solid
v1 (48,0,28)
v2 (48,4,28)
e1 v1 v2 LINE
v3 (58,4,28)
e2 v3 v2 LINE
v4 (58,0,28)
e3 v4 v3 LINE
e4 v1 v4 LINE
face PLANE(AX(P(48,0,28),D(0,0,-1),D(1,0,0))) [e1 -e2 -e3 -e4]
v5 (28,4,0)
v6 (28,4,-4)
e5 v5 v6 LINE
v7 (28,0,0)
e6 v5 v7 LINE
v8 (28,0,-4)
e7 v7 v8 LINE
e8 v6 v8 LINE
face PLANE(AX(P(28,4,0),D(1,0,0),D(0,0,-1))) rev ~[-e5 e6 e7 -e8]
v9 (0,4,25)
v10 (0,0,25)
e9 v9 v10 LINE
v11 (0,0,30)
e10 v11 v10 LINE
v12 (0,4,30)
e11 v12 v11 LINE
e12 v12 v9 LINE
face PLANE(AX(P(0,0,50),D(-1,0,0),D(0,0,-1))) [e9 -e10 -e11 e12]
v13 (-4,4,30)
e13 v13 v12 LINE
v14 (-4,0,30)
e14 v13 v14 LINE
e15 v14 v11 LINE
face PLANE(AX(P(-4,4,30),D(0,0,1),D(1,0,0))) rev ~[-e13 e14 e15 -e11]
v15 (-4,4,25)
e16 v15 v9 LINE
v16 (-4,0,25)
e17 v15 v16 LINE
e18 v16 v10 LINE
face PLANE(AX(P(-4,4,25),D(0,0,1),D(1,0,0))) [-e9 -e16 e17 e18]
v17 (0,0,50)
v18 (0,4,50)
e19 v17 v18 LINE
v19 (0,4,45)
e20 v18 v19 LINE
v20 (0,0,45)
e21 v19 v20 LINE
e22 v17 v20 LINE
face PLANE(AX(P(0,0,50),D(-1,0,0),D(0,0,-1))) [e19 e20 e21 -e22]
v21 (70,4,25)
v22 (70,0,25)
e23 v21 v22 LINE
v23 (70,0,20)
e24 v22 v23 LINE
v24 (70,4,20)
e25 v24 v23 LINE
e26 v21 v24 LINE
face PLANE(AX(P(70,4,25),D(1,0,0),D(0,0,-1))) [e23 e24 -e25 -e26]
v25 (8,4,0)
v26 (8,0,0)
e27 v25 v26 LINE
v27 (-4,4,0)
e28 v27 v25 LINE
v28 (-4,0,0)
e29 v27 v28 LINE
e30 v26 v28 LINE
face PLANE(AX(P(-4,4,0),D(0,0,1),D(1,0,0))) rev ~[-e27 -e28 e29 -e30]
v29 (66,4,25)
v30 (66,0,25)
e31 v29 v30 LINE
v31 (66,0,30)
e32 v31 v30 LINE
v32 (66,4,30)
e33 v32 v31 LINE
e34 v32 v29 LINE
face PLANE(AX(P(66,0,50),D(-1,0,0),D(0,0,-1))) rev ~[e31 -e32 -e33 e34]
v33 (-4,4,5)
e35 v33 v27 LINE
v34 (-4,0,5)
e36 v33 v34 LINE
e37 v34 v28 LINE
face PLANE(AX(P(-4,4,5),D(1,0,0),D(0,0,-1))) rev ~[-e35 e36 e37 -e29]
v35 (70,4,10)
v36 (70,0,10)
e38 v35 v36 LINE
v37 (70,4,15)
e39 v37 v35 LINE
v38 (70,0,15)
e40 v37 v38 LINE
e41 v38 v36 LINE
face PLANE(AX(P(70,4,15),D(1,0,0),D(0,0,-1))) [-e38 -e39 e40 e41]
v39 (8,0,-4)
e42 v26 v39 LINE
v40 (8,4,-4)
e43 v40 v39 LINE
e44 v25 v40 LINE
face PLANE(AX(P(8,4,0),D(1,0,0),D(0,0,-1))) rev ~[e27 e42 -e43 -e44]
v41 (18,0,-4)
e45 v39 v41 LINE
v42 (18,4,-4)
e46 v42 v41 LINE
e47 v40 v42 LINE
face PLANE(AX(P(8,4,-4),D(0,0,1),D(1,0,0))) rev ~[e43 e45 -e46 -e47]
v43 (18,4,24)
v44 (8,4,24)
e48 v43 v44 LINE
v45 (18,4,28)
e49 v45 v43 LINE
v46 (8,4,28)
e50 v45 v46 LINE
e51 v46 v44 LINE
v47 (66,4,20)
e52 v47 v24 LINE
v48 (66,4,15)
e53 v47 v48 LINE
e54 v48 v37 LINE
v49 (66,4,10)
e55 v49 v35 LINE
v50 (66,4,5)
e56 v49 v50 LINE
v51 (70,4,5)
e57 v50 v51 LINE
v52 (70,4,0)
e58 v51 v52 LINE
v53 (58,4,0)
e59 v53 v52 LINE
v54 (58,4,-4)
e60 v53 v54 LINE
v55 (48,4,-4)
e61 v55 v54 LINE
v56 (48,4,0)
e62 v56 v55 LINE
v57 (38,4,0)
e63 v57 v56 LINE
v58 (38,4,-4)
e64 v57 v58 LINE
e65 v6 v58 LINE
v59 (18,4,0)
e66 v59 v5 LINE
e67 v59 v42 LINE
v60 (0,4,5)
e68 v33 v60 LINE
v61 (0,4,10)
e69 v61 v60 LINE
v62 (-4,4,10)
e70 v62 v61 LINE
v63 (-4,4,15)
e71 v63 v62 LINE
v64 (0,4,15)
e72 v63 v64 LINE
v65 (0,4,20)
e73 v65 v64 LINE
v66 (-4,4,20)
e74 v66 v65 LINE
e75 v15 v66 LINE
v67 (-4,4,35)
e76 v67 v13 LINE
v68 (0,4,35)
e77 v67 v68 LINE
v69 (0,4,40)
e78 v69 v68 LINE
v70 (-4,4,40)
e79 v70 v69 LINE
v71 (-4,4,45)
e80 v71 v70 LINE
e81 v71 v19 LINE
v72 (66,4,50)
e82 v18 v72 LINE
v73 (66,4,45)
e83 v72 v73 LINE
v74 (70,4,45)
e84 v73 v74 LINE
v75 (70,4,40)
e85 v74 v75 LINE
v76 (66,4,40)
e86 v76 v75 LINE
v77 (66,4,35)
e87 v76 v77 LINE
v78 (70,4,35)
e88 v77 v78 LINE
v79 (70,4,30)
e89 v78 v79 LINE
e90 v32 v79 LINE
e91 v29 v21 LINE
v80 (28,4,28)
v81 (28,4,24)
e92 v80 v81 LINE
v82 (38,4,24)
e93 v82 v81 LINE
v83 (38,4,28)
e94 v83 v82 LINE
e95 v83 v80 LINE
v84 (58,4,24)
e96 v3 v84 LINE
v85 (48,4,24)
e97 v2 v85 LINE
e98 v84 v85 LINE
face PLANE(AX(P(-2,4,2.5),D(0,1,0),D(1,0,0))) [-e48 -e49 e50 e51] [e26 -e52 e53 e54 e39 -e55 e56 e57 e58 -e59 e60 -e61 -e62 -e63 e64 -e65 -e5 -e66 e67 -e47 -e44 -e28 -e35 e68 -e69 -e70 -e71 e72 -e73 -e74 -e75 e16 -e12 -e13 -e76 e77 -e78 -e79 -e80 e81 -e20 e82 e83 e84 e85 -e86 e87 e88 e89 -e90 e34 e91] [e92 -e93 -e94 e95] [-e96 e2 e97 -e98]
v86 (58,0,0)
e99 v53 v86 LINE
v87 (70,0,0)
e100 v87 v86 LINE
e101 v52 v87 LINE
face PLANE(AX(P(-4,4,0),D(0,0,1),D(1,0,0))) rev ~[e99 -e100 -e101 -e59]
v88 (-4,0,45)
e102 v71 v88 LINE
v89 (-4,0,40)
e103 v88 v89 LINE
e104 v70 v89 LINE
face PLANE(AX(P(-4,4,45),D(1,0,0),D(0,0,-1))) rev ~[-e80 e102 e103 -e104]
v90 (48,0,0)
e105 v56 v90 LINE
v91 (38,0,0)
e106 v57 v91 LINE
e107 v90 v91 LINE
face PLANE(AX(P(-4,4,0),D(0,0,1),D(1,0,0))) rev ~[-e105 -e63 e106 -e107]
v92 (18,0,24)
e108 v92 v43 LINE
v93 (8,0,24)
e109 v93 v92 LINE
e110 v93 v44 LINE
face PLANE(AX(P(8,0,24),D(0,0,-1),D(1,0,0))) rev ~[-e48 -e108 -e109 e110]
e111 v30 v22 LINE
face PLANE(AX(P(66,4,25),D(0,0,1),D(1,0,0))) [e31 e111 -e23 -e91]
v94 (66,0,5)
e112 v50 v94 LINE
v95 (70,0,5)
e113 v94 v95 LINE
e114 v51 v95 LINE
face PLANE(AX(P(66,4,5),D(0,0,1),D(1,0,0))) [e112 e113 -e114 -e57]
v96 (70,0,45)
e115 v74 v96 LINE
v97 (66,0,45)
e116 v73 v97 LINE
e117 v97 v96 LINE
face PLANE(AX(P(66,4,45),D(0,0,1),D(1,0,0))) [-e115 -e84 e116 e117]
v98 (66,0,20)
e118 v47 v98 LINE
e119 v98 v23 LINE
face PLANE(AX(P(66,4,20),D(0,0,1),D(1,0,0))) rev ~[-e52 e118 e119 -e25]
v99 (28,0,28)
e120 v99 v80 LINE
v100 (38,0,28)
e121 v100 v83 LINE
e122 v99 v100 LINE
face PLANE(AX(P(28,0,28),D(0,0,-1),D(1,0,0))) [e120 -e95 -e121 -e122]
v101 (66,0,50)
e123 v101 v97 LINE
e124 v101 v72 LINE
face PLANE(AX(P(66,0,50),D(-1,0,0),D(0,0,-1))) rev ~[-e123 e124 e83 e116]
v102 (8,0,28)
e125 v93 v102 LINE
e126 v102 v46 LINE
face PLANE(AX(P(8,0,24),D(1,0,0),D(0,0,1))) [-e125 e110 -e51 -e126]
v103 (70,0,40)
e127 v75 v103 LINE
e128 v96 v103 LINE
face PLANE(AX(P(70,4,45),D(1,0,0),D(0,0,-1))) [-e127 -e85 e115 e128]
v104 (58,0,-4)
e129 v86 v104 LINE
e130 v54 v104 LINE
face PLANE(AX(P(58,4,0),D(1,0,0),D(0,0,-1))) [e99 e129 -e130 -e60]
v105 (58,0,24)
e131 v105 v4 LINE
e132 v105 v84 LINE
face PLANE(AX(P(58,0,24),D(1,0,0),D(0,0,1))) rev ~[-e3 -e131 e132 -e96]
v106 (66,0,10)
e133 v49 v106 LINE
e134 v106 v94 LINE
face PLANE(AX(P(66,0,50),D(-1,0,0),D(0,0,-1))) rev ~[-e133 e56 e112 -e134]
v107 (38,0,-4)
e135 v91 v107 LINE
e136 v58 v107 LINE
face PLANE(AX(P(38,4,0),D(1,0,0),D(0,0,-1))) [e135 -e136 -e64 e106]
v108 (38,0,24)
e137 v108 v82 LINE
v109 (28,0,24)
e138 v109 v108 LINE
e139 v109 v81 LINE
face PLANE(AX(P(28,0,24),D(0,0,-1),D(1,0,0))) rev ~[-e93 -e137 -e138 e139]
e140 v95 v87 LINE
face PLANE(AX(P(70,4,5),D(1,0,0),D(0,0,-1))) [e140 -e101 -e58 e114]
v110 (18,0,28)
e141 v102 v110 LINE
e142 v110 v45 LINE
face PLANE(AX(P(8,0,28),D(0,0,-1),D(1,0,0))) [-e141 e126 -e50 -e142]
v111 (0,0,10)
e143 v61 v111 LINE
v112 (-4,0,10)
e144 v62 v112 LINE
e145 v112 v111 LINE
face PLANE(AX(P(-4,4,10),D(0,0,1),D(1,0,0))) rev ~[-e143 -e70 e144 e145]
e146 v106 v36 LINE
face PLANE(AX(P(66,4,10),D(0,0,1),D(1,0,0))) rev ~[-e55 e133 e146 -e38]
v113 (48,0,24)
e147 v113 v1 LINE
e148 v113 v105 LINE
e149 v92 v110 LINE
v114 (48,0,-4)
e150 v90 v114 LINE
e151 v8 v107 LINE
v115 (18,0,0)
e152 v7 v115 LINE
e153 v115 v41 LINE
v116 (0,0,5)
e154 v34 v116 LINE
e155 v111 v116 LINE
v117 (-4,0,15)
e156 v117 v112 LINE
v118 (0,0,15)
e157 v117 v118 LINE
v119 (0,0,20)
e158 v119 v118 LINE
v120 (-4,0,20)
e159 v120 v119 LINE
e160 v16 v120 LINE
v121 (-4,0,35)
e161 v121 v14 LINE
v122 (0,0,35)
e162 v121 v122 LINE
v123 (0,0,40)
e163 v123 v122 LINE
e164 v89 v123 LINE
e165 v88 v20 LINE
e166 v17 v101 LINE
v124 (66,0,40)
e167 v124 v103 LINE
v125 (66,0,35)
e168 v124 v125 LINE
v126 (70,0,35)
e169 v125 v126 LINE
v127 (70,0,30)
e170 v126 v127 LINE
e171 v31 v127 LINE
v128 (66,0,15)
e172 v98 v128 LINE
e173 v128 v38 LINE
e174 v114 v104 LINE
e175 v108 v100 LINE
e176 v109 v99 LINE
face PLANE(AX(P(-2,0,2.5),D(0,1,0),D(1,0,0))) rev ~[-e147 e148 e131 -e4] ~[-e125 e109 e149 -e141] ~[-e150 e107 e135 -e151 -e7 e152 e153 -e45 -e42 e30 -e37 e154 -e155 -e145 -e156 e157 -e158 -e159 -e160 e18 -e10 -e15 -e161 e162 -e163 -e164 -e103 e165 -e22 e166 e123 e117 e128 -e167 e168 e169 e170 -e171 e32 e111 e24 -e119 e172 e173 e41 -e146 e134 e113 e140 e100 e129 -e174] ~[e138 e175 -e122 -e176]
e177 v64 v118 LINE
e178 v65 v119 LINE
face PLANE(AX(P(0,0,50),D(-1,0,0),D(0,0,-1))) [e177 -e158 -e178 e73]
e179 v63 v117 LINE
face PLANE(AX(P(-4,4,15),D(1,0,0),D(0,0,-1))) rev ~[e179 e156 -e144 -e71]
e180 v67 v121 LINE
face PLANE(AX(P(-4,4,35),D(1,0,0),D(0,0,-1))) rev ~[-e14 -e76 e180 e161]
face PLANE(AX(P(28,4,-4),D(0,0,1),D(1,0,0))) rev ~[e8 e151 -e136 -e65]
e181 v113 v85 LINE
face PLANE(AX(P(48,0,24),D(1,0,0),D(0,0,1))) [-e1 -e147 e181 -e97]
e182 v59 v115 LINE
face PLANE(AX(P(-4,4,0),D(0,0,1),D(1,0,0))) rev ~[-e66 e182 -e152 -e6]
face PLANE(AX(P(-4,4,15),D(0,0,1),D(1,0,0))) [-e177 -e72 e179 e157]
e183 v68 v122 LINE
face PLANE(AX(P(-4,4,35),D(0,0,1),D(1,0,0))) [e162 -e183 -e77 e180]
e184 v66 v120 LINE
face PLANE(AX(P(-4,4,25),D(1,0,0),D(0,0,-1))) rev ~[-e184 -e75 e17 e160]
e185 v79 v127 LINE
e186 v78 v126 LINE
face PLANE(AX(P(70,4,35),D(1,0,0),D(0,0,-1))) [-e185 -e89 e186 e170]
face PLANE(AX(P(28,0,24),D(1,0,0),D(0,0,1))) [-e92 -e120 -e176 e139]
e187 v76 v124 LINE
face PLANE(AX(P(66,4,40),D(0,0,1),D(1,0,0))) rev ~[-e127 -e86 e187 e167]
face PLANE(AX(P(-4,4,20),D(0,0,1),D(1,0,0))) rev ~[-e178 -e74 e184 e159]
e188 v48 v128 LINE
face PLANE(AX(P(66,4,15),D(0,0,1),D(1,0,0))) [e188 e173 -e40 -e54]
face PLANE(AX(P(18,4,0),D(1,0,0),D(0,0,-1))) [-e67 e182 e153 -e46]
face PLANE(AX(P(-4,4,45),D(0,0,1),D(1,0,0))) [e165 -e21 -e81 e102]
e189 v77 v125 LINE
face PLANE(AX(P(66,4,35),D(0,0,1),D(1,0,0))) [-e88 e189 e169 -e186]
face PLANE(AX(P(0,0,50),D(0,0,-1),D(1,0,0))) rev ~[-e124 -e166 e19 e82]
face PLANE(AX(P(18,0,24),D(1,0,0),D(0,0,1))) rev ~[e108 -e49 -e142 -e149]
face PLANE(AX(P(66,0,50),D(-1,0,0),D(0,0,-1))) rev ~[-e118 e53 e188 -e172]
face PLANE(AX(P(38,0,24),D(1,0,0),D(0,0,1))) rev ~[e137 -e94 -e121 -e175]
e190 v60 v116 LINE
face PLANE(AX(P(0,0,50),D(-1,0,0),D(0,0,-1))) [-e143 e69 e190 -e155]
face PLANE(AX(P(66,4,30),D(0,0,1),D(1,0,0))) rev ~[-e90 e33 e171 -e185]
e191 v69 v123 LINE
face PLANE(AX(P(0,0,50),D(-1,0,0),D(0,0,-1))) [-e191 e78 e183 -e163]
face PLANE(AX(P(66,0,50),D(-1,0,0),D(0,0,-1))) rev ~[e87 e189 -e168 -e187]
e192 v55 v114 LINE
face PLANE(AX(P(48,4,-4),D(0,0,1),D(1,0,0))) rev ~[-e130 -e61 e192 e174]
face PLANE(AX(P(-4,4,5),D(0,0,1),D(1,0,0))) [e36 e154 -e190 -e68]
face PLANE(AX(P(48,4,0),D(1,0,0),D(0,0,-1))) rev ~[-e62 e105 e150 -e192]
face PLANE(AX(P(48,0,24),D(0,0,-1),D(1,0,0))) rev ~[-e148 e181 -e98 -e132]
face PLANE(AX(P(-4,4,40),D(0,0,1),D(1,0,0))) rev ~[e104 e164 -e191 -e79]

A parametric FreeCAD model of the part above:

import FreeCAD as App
import Part
import Sketcher
Q = App.Units.Quantity

doc = App.newDocument("Part")
body = doc.addObject("PartDesign::Body", "Body")

# Sketch on XZ plane
sketch1 = doc.addObject("Sketcher::SketchObject", "Sketch")
body.addObject(sketch1)
sketch1.AttachmentSupport = (doc.XZ_Plane, [""])
sketch1.MapMode = "FlatFace"
sketch1.addGeometry([
    Part.LineSegment(App.Vector(0, 0, 0), App.Vector(0, 50, 0)),
    Part.LineSegment(App.Vector(0, 50, 0), App.Vector(66, 50, 0)),
    Part.LineSegment(App.Vector(66, 50, 0), App.Vector(66, 0, 0)),
    Part.LineSegment(App.Vector(66, 0, 0), App.Vector(0, 0, 0)),
], False)
sketch1.addConstraint([
    Sketcher.Constraint("Coincident", 0, 2, 1, 1),
    Sketcher.Constraint("Coincident", 1, 2, 2, 1),
    Sketcher.Constraint("Coincident", 2, 2, 3, 1),
    Sketcher.Constraint("Coincident", 3, 2, 0, 1),
    Sketcher.Constraint("Vertical", 0),
    Sketcher.Constraint("Horizontal", 1),
    Sketcher.Constraint("Vertical", 2),
    Sketcher.Constraint("Horizontal", 3),
    Sketcher.Constraint("Coincident", 3, 2, -1, 1),
    Sketcher.Constraint("DistanceX", 1, 1, 1, 2, Q("66 mm")),
    Sketcher.Constraint("DistanceY", 0, 1, 0, 2, Q("50 mm")),
])
pad1 = doc.addObject("PartDesign::Pad", "Pad")
body.addObject(pad1)
pad1.Profile = sketch1
pad1.Length = 4
pad1.Reversed = True

# Sketch on XZ plane
sketch2 = doc.addObject("Sketcher::SketchObject", "Sketch001")
body.addObject(sketch2)
sketch2.AttachmentSupport = (doc.XZ_Plane, [""])
sketch2.MapMode = "FlatFace"
sketch2.AttachmentOffset = App.Placement(App.Vector(0, 0, -4), App.Rotation())
sketch2.addGeometry([
    Part.LineSegment(App.Vector(-4, 0, 0), App.Vector(-4, 5, 0)),  # 0
    Part.LineSegment(App.Vector(-4, 5, 0), App.Vector(0, 5, 0)),  # 1
    Part.LineSegment(App.Vector(0, 5, 0), App.Vector(0, 0, 0)),  # 2
    Part.LineSegment(App.Vector(0, 0, 0), App.Vector(-4, 0, 0)),  # 3
    Part.LineSegment(App.Vector(66, 0, 0), App.Vector(66, 5, 0)),  # 4
    Part.LineSegment(App.Vector(66, 5, 0), App.Vector(70, 5, 0)),  # 5
    Part.LineSegment(App.Vector(70, 5, 0), App.Vector(70, 0, 0)),  # 6
    Part.LineSegment(App.Vector(70, 0, 0), App.Vector(66, 0, 0)),  # 7
], False)
sketch2.addConstraint([
    Sketcher.Constraint("Coincident", 0, 2, 1, 1),
    Sketcher.Constraint("Coincident", 1, 2, 2, 1),
    Sketcher.Constraint("Coincident", 2, 2, 3, 1),
    Sketcher.Constraint("Coincident", 3, 2, 0, 1),
    Sketcher.Constraint("Coincident", 4, 2, 5, 1),
    Sketcher.Constraint("Coincident", 5, 2, 6, 1),
    Sketcher.Constraint("Coincident", 6, 2, 7, 1),
    Sketcher.Constraint("Coincident", 7, 2, 4, 1),
    Sketcher.Constraint("Vertical", 0),
    Sketcher.Constraint("Horizontal", 1),
    Sketcher.Constraint("Vertical", 2),
    Sketcher.Constraint("Horizontal", 3),
    Sketcher.Constraint("Vertical", 4),
    Sketcher.Constraint("Horizontal", 5),
    Sketcher.Constraint("Vertical", 6),
    Sketcher.Constraint("Horizontal", 7),
    Sketcher.Constraint("Coincident", 2, 2, -1, 1),
    Sketcher.Constraint("PointOnObject", 6, 2, -1),
    Sketcher.Constraint("Horizontal", 1, 2, 4, 2),
    Sketcher.Constraint("Equal", 3, 5),
    Sketcher.Constraint("DistanceX", 1, 1, 1, 2, Q("4 mm")),
    Sketcher.Constraint("DistanceY", 0, 1, 0, 2, Q("5 mm")),
    Sketcher.Constraint("DistanceX", -1, 1, 4, 2, Q("66 mm")),
])
pad2 = doc.addObject("PartDesign::Pad", "Pad001")
body.addObject(pad2)
pad2.Profile = sketch2
pad2.Type = "UpToLast"
doc.recompute()

linearpattern = doc.addObject("PartDesign::LinearPattern", "LinearPattern")
body.addObject(linearpattern)
linearpattern.Originals = [pad2]
linearpattern.Direction = (doc.Z_Axis, [""])
linearpattern.Mode = "offset"
linearpattern.Offset = 10
linearpattern.Occurrences = 5
body.Tip = linearpattern

# Sketch on XZ plane
sketch3 = doc.addObject("Sketcher::SketchObject", "Sketch002")
body.addObject(sketch3)
sketch3.AttachmentSupport = (doc.XZ_Plane, [""])
sketch3.MapMode = "FlatFace"
sketch3.AttachmentOffset = App.Placement(App.Vector(0, 0, -4), App.Rotation())
sketch3.addGeometry([
    Part.LineSegment(App.Vector(28, -4, 0), App.Vector(28, 0, 0)),
    Part.LineSegment(App.Vector(28, 0, 0), App.Vector(38, 0, 0)),
    Part.LineSegment(App.Vector(38, 0, 0), App.Vector(38, -4, 0)),
    Part.LineSegment(App.Vector(38, -4, 0), App.Vector(28, -4, 0)),
], False)
sketch3.addConstraint([
    Sketcher.Constraint("Coincident", 0, 2, 1, 1),
    Sketcher.Constraint("Coincident", 1, 2, 2, 1),
    Sketcher.Constraint("Coincident", 2, 2, 3, 1),
    Sketcher.Constraint("Coincident", 3, 2, 0, 1),
    Sketcher.Constraint("Vertical", 0),
    Sketcher.Constraint("Horizontal", 1),
    Sketcher.Constraint("Vertical", 2),
    Sketcher.Constraint("Horizontal", 3),
    Sketcher.Constraint("PointOnObject", 0, 2, -1),
    Sketcher.Constraint("DistanceX", 1, 1, 1, 2, Q("10 mm")),
    Sketcher.Constraint("DistanceY", 0, 1, 0, 2, Q("4 mm")),
    Sketcher.Constraint("DistanceX", -1, 1, 0, 2, Q("28 mm")),
])
pad3 = doc.addObject("PartDesign::Pad", "Pad002")
body.addObject(pad3)
pad3.Profile = sketch3
pad3.Length = 4
doc.recompute()

linearpattern2 = doc.addObject("PartDesign::LinearPattern", "LinearPattern001")
body.addObject(linearpattern2)
linearpattern2.Originals = [pad3]
linearpattern2.Direction = (doc.X_Axis, [""])
linearpattern2.Mode = "offset"
linearpattern2.Offset = 20
linearpattern2.Occurrences = 2
body.Tip = linearpattern2
doc.recompute()

linearpattern3 = doc.addObject("PartDesign::LinearPattern", "LinearPattern002")
body.addObject(linearpattern3)
linearpattern3.Originals = [pad3]
linearpattern3.Direction = (doc.X_Axis, [""])
linearpattern3.Mode = "offset"
linearpattern3.Offset = 20
linearpattern3.Occurrences = 2
linearpattern3.Reversed = True
body.Tip = linearpattern3

# Sketch on XZ plane
sketch4 = doc.addObject("Sketcher::SketchObject", "Sketch003")
body.addObject(sketch4)
sketch4.AttachmentSupport = (doc.XZ_Plane, [""])
sketch4.MapMode = "FlatFace"
sketch4.addGeometry([
    Part.LineSegment(App.Vector(8, 28, 0), App.Vector(8, 24, 0)),  # 0
    Part.LineSegment(App.Vector(8, 24, 0), App.Vector(18, 24, 0)),  # 1
    Part.LineSegment(App.Vector(18, 24, 0), App.Vector(18, 28, 0)),  # 2
    Part.LineSegment(App.Vector(18, 28, 0), App.Vector(8, 28, 0)),  # 3
    Part.LineSegment(App.Vector(28, 28, 0), App.Vector(28, 24, 0)),  # 4
    Part.LineSegment(App.Vector(28, 24, 0), App.Vector(38, 24, 0)),  # 5
    Part.LineSegment(App.Vector(38, 24, 0), App.Vector(38, 28, 0)),  # 6
    Part.LineSegment(App.Vector(38, 28, 0), App.Vector(28, 28, 0)),  # 7
    Part.LineSegment(App.Vector(48, 28, 0), App.Vector(48, 24, 0)),  # 8
    Part.LineSegment(App.Vector(48, 24, 0), App.Vector(58, 24, 0)),  # 9
    Part.LineSegment(App.Vector(58, 24, 0), App.Vector(58, 28, 0)),  # 10
    Part.LineSegment(App.Vector(58, 28, 0), App.Vector(48, 28, 0)),  # 11
], False)
sketch4.addConstraint([
    Sketcher.Constraint("Coincident", 0, 2, 1, 1),
    Sketcher.Constraint("Coincident", 1, 2, 2, 1),
    Sketcher.Constraint("Coincident", 2, 2, 3, 1),
    Sketcher.Constraint("Coincident", 3, 2, 0, 1),
    Sketcher.Constraint("Coincident", 4, 2, 5, 1),
    Sketcher.Constraint("Coincident", 5, 2, 6, 1),
    Sketcher.Constraint("Coincident", 6, 2, 7, 1),
    Sketcher.Constraint("Coincident", 7, 2, 4, 1),
    Sketcher.Constraint("Coincident", 8, 2, 9, 1),
    Sketcher.Constraint("Coincident", 9, 2, 10, 1),
    Sketcher.Constraint("Coincident", 10, 2, 11, 1),
    Sketcher.Constraint("Coincident", 11, 2, 8, 1),
    Sketcher.Constraint("Vertical", 0),
    Sketcher.Constraint("Horizontal", 1),
    Sketcher.Constraint("Vertical", 2),
    Sketcher.Constraint("Horizontal", 3),
    Sketcher.Constraint("Vertical", 4),
    Sketcher.Constraint("Horizontal", 5),
    Sketcher.Constraint("Vertical", 6),
    Sketcher.Constraint("Horizontal", 7),
    Sketcher.Constraint("Vertical", 8),
    Sketcher.Constraint("Horizontal", 9),
    Sketcher.Constraint("Vertical", 10),
    Sketcher.Constraint("Horizontal", 11),
    Sketcher.Constraint("Horizontal", 1, 2, 4, 2),
    Sketcher.Constraint("Horizontal", 3, 2, 6, 2),
    Sketcher.Constraint("Horizontal", 5, 2, 8, 2),
    Sketcher.Constraint("Horizontal", 7, 2, 10, 2),
    Sketcher.Constraint("Equal", 3, 5),
    Sketcher.Constraint("Equal", 7, 9),
    Sketcher.Constraint("DistanceX", 1, 1, 1, 2, Q("10 mm")),
    Sketcher.Constraint("DistanceY", 0, 2, 0, 1, Q("4 mm")),
    Sketcher.Constraint("DistanceX", -1, 1, 0, 2, Q("8 mm")),
    Sketcher.Constraint("DistanceY", -1, 1, 0, 2, Q("24 mm")),
    Sketcher.Constraint("DistanceX", -1, 1, 4, 2, Q("28 mm")),
    Sketcher.Constraint("DistanceX", -1, 1, 8, 2, Q("48 mm")),
])
pocket1 = doc.addObject("PartDesign::Pocket", "Pocket")
body.addObject(pocket1)
pocket1.Profile = sketch4
pocket1.Type = "ThroughAll"

doc.recompute()
